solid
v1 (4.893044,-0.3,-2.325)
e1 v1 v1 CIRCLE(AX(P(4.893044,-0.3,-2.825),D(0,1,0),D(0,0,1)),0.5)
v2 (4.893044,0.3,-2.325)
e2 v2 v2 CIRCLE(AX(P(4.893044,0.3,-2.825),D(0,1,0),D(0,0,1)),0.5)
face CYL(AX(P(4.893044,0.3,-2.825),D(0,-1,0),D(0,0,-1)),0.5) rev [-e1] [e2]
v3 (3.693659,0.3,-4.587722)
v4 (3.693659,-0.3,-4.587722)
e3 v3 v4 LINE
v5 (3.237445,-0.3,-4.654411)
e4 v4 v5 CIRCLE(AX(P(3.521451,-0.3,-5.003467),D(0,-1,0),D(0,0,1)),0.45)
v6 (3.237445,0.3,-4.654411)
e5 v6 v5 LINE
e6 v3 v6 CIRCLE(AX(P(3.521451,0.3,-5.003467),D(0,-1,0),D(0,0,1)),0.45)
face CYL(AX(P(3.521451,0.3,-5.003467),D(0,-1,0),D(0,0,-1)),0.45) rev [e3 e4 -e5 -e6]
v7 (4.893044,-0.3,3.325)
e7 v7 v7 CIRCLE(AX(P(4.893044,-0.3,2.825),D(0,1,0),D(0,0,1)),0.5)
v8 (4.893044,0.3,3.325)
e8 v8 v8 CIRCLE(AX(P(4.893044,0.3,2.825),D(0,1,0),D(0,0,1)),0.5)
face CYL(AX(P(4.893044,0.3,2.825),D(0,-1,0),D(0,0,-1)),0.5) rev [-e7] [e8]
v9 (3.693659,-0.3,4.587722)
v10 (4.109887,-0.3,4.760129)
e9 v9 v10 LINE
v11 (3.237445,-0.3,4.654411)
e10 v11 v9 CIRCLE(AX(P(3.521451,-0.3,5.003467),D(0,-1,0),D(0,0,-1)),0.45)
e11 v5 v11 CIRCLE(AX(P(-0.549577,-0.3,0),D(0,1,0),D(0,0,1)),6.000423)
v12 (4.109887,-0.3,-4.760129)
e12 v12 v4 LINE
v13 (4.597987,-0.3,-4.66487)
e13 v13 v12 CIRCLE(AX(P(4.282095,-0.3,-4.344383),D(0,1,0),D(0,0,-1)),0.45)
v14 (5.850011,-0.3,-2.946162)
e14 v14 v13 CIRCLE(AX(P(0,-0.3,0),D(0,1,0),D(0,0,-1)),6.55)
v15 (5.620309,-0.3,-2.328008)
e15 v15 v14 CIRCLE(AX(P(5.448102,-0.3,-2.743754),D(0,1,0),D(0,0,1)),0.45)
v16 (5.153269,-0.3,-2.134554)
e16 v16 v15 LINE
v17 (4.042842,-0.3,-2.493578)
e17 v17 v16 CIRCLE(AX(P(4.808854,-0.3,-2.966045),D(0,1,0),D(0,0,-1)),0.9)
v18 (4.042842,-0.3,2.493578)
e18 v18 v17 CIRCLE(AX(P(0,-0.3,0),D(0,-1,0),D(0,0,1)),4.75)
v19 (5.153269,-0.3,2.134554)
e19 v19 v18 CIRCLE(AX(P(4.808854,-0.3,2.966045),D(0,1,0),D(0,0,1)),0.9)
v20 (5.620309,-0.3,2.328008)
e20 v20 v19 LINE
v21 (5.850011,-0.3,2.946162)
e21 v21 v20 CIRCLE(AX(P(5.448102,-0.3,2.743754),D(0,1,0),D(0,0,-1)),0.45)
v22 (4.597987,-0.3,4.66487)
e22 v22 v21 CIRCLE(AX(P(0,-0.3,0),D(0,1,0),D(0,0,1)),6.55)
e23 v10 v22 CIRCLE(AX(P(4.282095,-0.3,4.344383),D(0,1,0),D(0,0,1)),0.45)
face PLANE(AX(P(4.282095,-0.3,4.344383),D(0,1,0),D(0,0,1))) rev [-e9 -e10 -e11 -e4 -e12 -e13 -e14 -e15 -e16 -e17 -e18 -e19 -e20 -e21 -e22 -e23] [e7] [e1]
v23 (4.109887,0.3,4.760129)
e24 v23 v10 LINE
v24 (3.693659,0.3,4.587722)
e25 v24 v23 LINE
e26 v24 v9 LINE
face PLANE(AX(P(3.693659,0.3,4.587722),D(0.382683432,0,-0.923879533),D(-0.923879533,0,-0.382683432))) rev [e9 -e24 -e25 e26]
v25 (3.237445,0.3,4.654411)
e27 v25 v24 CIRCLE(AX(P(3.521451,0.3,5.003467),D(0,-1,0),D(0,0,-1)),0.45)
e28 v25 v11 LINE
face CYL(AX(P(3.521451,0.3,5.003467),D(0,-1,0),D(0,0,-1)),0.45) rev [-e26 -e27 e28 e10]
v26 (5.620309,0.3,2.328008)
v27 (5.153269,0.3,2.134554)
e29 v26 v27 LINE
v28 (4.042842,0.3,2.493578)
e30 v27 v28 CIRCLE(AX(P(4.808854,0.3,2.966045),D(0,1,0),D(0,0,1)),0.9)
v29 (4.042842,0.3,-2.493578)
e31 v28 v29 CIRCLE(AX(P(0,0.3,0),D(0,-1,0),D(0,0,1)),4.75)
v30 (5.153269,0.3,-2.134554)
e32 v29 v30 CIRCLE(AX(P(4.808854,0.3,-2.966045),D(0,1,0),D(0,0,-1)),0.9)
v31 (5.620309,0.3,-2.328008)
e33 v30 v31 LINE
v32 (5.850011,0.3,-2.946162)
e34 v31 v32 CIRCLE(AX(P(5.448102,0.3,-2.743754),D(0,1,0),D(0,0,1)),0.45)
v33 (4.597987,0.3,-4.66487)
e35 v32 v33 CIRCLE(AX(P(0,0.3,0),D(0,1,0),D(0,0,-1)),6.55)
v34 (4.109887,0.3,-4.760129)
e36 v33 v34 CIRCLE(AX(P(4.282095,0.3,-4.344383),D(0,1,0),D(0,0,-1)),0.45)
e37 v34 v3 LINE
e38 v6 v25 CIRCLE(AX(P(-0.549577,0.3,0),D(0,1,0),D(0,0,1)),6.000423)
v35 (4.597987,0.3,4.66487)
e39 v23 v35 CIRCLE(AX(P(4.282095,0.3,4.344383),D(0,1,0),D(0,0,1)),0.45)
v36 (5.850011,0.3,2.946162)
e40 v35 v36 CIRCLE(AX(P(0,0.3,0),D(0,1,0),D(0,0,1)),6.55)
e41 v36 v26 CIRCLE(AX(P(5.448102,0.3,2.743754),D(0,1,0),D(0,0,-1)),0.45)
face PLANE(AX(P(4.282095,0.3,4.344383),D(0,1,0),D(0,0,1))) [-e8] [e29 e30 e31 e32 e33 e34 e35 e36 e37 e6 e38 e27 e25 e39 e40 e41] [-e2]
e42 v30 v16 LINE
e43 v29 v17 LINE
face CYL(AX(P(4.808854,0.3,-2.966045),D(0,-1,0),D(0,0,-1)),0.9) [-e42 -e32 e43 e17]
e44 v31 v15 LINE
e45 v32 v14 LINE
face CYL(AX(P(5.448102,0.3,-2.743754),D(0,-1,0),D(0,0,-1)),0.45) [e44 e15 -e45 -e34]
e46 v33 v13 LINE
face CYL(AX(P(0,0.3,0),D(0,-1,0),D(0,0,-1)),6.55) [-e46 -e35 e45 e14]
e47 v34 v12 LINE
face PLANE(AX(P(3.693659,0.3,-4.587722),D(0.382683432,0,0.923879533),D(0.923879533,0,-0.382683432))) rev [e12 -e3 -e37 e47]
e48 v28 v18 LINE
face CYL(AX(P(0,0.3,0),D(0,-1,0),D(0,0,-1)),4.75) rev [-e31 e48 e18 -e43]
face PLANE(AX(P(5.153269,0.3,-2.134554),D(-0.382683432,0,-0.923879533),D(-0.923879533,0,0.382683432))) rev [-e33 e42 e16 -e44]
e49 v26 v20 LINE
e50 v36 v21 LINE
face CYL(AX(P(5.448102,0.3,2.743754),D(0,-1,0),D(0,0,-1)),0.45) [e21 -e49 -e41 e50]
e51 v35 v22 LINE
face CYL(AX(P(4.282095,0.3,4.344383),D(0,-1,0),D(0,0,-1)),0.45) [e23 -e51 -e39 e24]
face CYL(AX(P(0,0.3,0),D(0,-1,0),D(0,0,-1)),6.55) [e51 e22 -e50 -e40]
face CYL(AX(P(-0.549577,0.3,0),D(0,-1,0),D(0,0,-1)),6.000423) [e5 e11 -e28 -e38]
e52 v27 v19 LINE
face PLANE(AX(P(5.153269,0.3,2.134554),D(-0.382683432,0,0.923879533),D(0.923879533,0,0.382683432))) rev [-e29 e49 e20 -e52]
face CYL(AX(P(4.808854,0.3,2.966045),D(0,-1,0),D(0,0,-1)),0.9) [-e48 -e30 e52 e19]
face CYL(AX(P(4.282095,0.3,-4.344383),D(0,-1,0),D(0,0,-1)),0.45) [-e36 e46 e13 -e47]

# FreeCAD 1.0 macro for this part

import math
import FreeCAD as App
import Part
import Sketcher
Q = App.Units.Quantity

doc = App.newDocument("Part")
body = doc.addObject("PartDesign::Body", "Body")

sketch1 = body.newObject("Sketcher::SketchObject", "Sketch")
sketch1.AttachmentSupport = (doc.getObject("XZ_Plane"), [""])
sketch1.MapMode = "FlatFace"
sketch1.addGeometry(Part.LineSegment(App.Vector(4.109887, -4.760129, 0), App.Vector(3.693659, -4.587722, 0)), False)
sketch1.addGeometry(Part.ArcOfCircle(Part.Circle(App.Vector(3.521451, -5.003467, 0), App.Vector(0, 0, 1), 0.45), math.radians(67.5), math.radians(129.13323)), False)
sketch1.addGeometry(Part.ArcOfCircle(Part.Circle(App.Vector(-0.549577, 0, 0), App.Vector(0, 0, 1), 6.000423), math.radians(50.86677), math.radians(309.13323)), False)
sketch1.addGeometry(Part.ArcOfCircle(Part.Circle(App.Vector(3.521451, 5.003467, 0), App.Vector(0, 0, 1), 0.45), math.radians(-129.13323), math.radians(-67.5)), False)
sketch1.addGeometry(Part.LineSegment(App.Vector(3.693659, 4.587722, 0), App.Vector(4.109887, 4.760129, 0)), False)
sketch1.addGeometry(Part.ArcOfCircle(Part.Circle(App.Vector(4.282095, 4.344383, 0), App.Vector(0, 0, 1), 0.45), math.radians(45.413704), math.radians(112.5)), False)
sketch1.addGeometry(Part.ArcOfCircle(Part.Circle(App.Vector(0, 0, 0), App.Vector(0, 0, 1), 6.55), math.radians(26.730581), math.radians(45.413704)), False)
sketch1.addGeometry(Part.ArcOfCircle(Part.Circle(App.Vector(5.448102, 2.743754, 0), App.Vector(0, 0, 1), 0.45), math.radians(-67.5), math.radians(26.730581)), False)
sketch1.addGeometry(Part.LineSegment(App.Vector(5.620309, 2.328008, 0), App.Vector(5.153269, 2.134554, 0)), False)
sketch1.addGeometry(Part.ArcOfCircle(Part.Circle(App.Vector(4.808854, 2.966045, 0), App.Vector(0, 0, 1), 0.9), math.radians(-148.334194), math.radians(-67.5)), False)
sketch1.addGeometry(Part.ArcOfCircle(Part.Circle(App.Vector(0, 0, 0), App.Vector(0, 0, 1), 4.75), math.radians(31.665806), math.radians(328.334194)), False)
sketch1.addGeometry(Part.ArcOfCircle(Part.Circle(App.Vector(4.808854, -2.966045, 0), App.Vector(0, 0, 1), 0.9), math.radians(67.5), math.radians(148.334194)), False)
sketch1.addGeometry(Part.LineSegment(App.Vector(5.153269, -2.134554, 0), App.Vector(5.620309, -2.328008, 0)), False)
sketch1.addGeometry(Part.ArcOfCircle(Part.Circle(App.Vector(5.448102, -2.743754, 0), App.Vector(0, 0, 1), 0.45), math.radians(-26.730581), math.radians(67.5)), False)
sketch1.addGeometry(Part.ArcOfCircle(Part.Circle(App.Vector(0, 0, 0), App.Vector(0, 0, 1), 6.55), math.radians(-45.413704), math.radians(-26.730581)), False)
sketch1.addGeometry(Part.ArcOfCircle(Part.Circle(App.Vector(4.282095, -4.344383, 0), App.Vector(0, 0, 1), 0.45), math.radians(-112.5), math.radians(-45.413704)), False)
sketch1.addGeometry(Part.Circle(App.Vector(4.893044, 2.825, 0), App.Vector(0, 0, 1), 0.5), False)
sketch1.addGeometry(Part.Circle(App.Vector(4.893044, -2.825, 0), App.Vector(0, 0, 1), 0.5), False)
sketch1.addConstraint(Sketcher.Constraint("Tangent", 0, 2, 1, 1))
sketch1.addConstraint(Sketcher.Constraint("Tangent", 1, 2, 2, 2))
sketch1.addConstraint(Sketcher.Constraint("Tangent", 2, 1, 3, 1))
sketch1.addConstraint(Sketcher.Constraint("Tangent", 3, 2, 4, 1))
sketch1.addConstraint(Sketcher.Constraint("Tangent", 4, 2, 5, 2))
sketch1.addConstraint(Sketcher.Constraint("Tangent", 5, 1, 6, 2))
sketch1.addConstraint(Sketcher.Constraint("Tangent", 6, 1, 7, 2))
sketch1.addConstraint(Sketcher.Constraint("Tangent", 7, 1, 8, 1))
sketch1.addConstraint(Sketcher.Constraint("Tangent", 8, 2, 9, 2))
sketch1.addConstraint(Sketcher.Constraint("Tangent", 9, 1, 10, 1))
sketch1.addConstraint(Sketcher.Constraint("Tangent", 10, 2, 11, 2))
sketch1.addConstraint(Sketcher.Constraint("Tangent", 11, 1, 12, 1))
sketch1.addConstraint(Sketcher.Constraint("Tangent", 12, 2, 13, 2))
sketch1.addConstraint(Sketcher.Constraint("Tangent", 13, 1, 14, 2))
sketch1.addConstraint(Sketcher.Constraint("Tangent", 14, 1, 15, 2))
sketch1.addConstraint(Sketcher.Constraint("Tangent", 15, 1, 0, 1))
sketch1.addConstraint(Sketcher.Constraint("Coincident", 6, 3, -1, 1))
sketch1.addConstraint(Sketcher.Constraint("Coincident", 10, 3, -1, 1))
sketch1.addConstraint(Sketcher.Constraint("Coincident", 14, 3, -1, 1))
sketch1.addConstraint(Sketcher.Constraint("Equal", 1, 3))
sketch1.addConstraint(Sketcher.Constraint("Equal", 3, 5))
sketch1.addConstraint(Sketcher.Constraint("Equal", 5, 7))
sketch1.addConstraint(Sketcher.Constraint("Equal", 9, 11))
sketch1.addConstraint(Sketcher.Constraint("Equal", 7, 13))
sketch1.addConstraint(Sketcher.Constraint("Equal", 6, 14))
sketch1.addConstraint(Sketcher.Constraint("Equal", 13, 15))
sketch1.addConstraint(Sketcher.Constraint("Equal", 16, 17))
sketch1.addConstraint(Sketcher.Constraint("Symmetric", 1, 3, 3, 3, -1))
sketch1.addConstraint(Sketcher.Constraint("Symmetric", 16, 3, 17, 3, -1))
sketch1.addConstraint(Sketcher.Constraint("Symmetric", 8, 2, 11, 1, -1))
sketch1.addConstraint(Sketcher.Constraint("Parallel", 4, 8))
sketch1.addConstraint(Sketcher.Constraint("Parallel", 0, 12))
sketch1.addConstraint(Sketcher.Constraint("Diameter", 16, 1.0))
sketch1.addConstraint(Sketcher.Constraint("Radius", 9, 0.9))
sketch1.addConstraint(Sketcher.Constraint("Radius", 1, 0.45))
sketch1.addConstraint(Sketcher.Constraint("Radius", 6, 6.55))
sketch1.addConstraint(Sketcher.Constraint("Radius", 10, 4.75))
sketch1.addConstraint(Sketcher.Constraint("Angle", 0, Q("157.5 deg")))
sketch1.addConstraint(Sketcher.Constraint("DistanceY", -1, 1, 16, 3, 2.825))
sketch1.addConstraint(Sketcher.Constraint("Radius", 2, 6.000423))
sketch1.addConstraint(Sketcher.Constraint("DistanceX", -1, 1, 7, 3, 5.448102))
sketch1.addConstraint(Sketcher.Constraint("DistanceX", 1, 2, 17, 3, 1.655599))
sketch1.addConstraint(Sketcher.Constraint("DistanceX", 4, 2, 5, 1, 0.4881))
sketch1.addConstraint(Sketcher.Constraint("DistanceX", 9, 1, 16, 3, 0.850202))
pad1 = body.newObject("PartDesign::Pad", "Pad")
pad1.Profile = sketch1
pad1.Type = "TwoLengths"
pad1.Length = 0.3
pad1.Length2 = 0.3
pad1.Reversed = True

doc.recompute()
